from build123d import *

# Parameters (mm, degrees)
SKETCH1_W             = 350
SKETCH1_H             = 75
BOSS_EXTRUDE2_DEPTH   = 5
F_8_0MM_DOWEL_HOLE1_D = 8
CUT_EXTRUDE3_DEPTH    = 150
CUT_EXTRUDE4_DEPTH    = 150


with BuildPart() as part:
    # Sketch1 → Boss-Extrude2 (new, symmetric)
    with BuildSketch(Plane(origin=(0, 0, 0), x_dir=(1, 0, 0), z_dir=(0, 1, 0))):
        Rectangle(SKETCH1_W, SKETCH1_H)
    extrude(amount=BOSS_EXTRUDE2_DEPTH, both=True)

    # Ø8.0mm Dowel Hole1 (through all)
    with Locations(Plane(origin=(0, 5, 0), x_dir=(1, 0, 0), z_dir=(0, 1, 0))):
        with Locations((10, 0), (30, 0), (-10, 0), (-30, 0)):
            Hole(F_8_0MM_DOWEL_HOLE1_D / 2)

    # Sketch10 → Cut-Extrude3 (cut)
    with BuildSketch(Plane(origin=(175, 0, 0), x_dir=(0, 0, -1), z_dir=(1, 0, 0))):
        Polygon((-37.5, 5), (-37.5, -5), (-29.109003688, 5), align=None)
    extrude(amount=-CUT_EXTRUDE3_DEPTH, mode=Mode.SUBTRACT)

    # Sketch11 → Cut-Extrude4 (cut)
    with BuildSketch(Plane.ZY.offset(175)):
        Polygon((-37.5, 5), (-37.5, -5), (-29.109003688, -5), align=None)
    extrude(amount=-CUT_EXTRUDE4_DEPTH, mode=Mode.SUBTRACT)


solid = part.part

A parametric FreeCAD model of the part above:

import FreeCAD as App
import Part
import Sketcher
Q = App.Units.Quantity

doc = App.newDocument("Part")
params = doc.addObject("Spreadsheet::Sheet", "Params")
for row, (alias, value) in enumerate([
    ("sketch1_width", "350 mm"),
    ("sketch1_height", "75 mm"),
    ("pad1_length", "10 mm"),
    ("sketch2_diameter", "8 mm"),
    ("hole_diameter", "8 mm"),
    ("sketch3_width", "10 mm"),
    ("pocket1_length", "150 mm"),
    ("sketch4_width", "10 mm"),
    ("pocket2_length", "150 mm"),
], start=1):
    params.set(f"A{row}", alias)
    params.set(f"B{row}", "=" + value)
    params.setAlias(f"B{row}", alias)

body = doc.addObject("PartDesign::Body", "Body")

sketch1 = body.newObject("Sketcher::SketchObject", "Sketch")
sketch1.AttachmentSupport = (doc.getObject("XZ_Plane"), [""])
sketch1.MapMode = "FlatFace"
sketch1.addGeometry([
    Part.LineSegment(App.Vector(-175, -38, 0), App.Vector(-175, 38, 0)),
    Part.LineSegment(App.Vector(-175, 38, 0), App.Vector(175, 38, 0)),
    Part.LineSegment(App.Vector(175, 38, 0), App.Vector(175, -38, 0)),
    Part.LineSegment(App.Vector(175, -38, 0), App.Vector(-175, -38, 0)),
], False)
sketch1.addConstraint([
    Sketcher.Constraint("Coincident", 0, 2, 1, 1),
    Sketcher.Constraint("Coincident", 1, 2, 2, 1),
    Sketcher.Constraint("Coincident", 2, 2, 3, 1),
    Sketcher.Constraint("Coincident", 3, 2, 0, 1),
    Sketcher.Constraint("Vertical", 0),
    Sketcher.Constraint("Horizontal", 1),
    Sketcher.Constraint("Vertical", 2),
    Sketcher.Constraint("Horizontal", 3),
    Sketcher.Constraint("Symmetric", 0, 2, 2, 2, -1, 1),
    Sketcher.Constraint("DistanceX", 1, 1, 1, 2, Q("350 mm")),
    Sketcher.Constraint("DistanceY", 0, 1, 0, 2, Q("75 mm")),
])
sketch1.setExpression("Constraints[9]", "Params.sketch1_width")
sketch1.setExpression("Constraints[10]", "Params.sketch1_height")
pad1 = body.newObject("PartDesign::Pad", "Pad")
pad1.Profile = sketch1
pad1.setExpression("Length", "Params.pad1_length")
pad1.Midplane = True

sketch2 = body.newObject("Sketcher::SketchObject", "Sketch001")
sketch2.AttachmentSupport = (doc.getObject("XZ_Plane"), [""])
sketch2.MapMode = "FlatFace"
sketch2.AttachmentOffset = App.Placement(App.Vector(0, 0, -5), App.Rotation())
sketch2.addGeometry([
    Part.Circle(App.Vector(10, 0, 0), App.Vector(0, 0, 1), 4),
    Part.Circle(App.Vector(30, 0, 0), App.Vector(0, 0, 1), 4),
    Part.Circle(App.Vector(-10, 0, 0), App.Vector(0, 0, 1), 4),
    Part.Circle(App.Vector(-30, 0, 0), App.Vector(0, 0, 1), 4),
], False)
sketch2.addConstraint([
    Sketcher.Constraint("Equal", 0, 1),
    Sketcher.Constraint("Equal", 1, 2),
    Sketcher.Constraint("Equal", 2, 3),
    Sketcher.Constraint("Symmetric", 0, 3, 2, 3, -1, 1),
    Sketcher.Constraint("Symmetric", 1, 3, 3, 3, -1, 1),
    Sketcher.Constraint("PointOnObject", 0, 3, -1),
    Sketcher.Constraint("PointOnObject", 1, 3, -1),
    Sketcher.Constraint("Diameter", 0, Q("8 mm")),
    Sketcher.Constraint("DistanceX", -1, 1, 0, 3, Q("10 mm")),
    Sketcher.Constraint("DistanceX", -1, 1, 1, 3, Q("30 mm")),
])
sketch2.setExpression("Constraints[7]", "Params.sketch2_diameter")
doc.recompute()
hole = body.newObject("PartDesign::Hole", "Hole")
hole.Profile = sketch2
hole.ThreadType = "None"
hole.setExpression("Diameter", "Params.hole_diameter")
hole.DepthType = "ThroughAll"
hole.Reversed = True

sketch3 = body.newObject("Sketcher::SketchObject", "Sketch002")
sketch3.AttachmentSupport = (doc.getObject("YZ_Plane"), [""])
sketch3.MapMode = "FlatFace"
sketch3.AttachmentOffset = App.Placement(App.Vector(0, 0, 175), App.Rotation())
sketch3.addGeometry([
    Part.LineSegment(App.Vector(5, 38, 0), App.Vector(-5, 38, 0)),
    Part.LineSegment(App.Vector(-5, 38, 0), App.Vector(5, 29, 0)),
    Part.LineSegment(App.Vector(5, 29, 0), App.Vector(5, 38, 0)),
], False)
sketch3.addConstraint([
    Sketcher.Constraint("Coincident", 0, 2, 1, 1),
    Sketcher.Constraint("Coincident", 1, 2, 2, 1),
    Sketcher.Constraint("Coincident", 2, 2, 0, 1),
    Sketcher.Constraint("Horizontal", 0),
    Sketcher.Constraint("Vertical", 2),
    Sketcher.Constraint("DistanceX", 0, 2, 0, 1, Q("10 mm")),
    Sketcher.Constraint("Angle", 1, Q("-40 deg")),
    Sketcher.Constraint("DistanceX", 0, 2, -1, 1, Q("5 mm")),
    Sketcher.Constraint("DistanceY", -1, 1, 0, 2, Q("37.5 mm")),
])
sketch3.setExpression("Constraints[5]", "Params.sketch3_width")
pocket1 = body.newObject("PartDesign::Pocket", "Pocket")
pocket1.Profile = sketch3
pocket1.setExpression("Length", "Params.pocket1_length")

sketch4 = body.newObject("Sketcher::SketchObject", "Sketch003")
sketch4.AttachmentSupport = (doc.getObject("YZ_Plane"), [""])
sketch4.MapMode = "FlatFace"
sketch4.AttachmentOffset = App.Placement(App.Vector(0, 0, -175), App.Rotation())
sketch4.addGeometry([
    Part.LineSegment(App.Vector(5, -38, 0), App.Vector(-5, -38, 0)),
    Part.LineSegment(App.Vector(-5, -38, 0), App.Vector(-5, -29, 0)),
    Part.LineSegment(App.Vector(-5, -29, 0), App.Vector(5, -38, 0)),
], False)
sketch4.addConstraint([
    Sketcher.Constraint("Coincident", 0, 2, 1, 1),
    Sketcher.Constraint("Coincident", 1, 2, 2, 1),
    Sketcher.Constraint("Coincident", 2, 2, 0, 1),
    Sketcher.Constraint("Horizontal", 0),
    Sketcher.Constraint("Vertical", 1),
    Sketcher.Constraint("DistanceX", 0, 2, 0, 1, Q("10 mm")),
    Sketcher.Constraint("Angle", 2, Q("-40 deg")),
    Sketcher.Constraint("DistanceX", 0, 2, -1, 1, Q("5 mm")),
    Sketcher.Constraint("DistanceY", 0, 2, -1, 1, Q("37.5 mm")),
])
sketch4.setExpression("Constraints[5]", "Params.sketch4_width")
pocket2 = body.newObject("PartDesign::Pocket", "Pocket001")
pocket2.Profile = sketch4
pocket2.setExpression("Length", "Params.pocket2_length")
pocket2.Reversed = True

doc.recompute()
